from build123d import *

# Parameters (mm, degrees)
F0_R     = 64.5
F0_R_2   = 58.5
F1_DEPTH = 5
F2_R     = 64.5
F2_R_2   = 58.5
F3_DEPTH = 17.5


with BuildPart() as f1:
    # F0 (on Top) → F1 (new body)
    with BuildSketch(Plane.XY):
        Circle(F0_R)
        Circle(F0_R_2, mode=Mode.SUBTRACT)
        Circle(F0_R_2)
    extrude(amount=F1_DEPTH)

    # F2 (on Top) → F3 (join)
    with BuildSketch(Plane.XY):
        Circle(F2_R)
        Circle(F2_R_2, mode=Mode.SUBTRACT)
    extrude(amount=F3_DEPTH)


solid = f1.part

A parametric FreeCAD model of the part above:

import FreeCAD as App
import Part
import Sketcher
Q = App.Units.Quantity

doc = App.newDocument("Part")
body = doc.addObject("PartDesign::Body", "Body")

sketch1 = body.newObject("Sketcher::SketchObject", "Sketch")
sketch1.AttachmentSupport = (doc.getObject("XY_Plane"), [""])
sketch1.MapMode = "FlatFace"
sketch1.addGeometry(Part.Circle(App.Vector(0, 0, 0), App.Vector(0, 0, 1), 64), False)
sketch1.addConstraint([
    Sketcher.Constraint("Coincident", 0, 3, -1, 1),
    Sketcher.Constraint("Diameter", 0, Q("129 mm")),
])
pad1 = body.newObject("PartDesign::Pad", "Pad")
pad1.Profile = sketch1
pad1.Length = 5

sketch2 = body.newObject("Sketcher::SketchObject", "Sketch001")
sketch2.AttachmentSupport = (doc.getObject("XY_Plane"), [""])
sketch2.MapMode = "FlatFace"
sketch2.addGeometry([
    Part.Circle(App.Vector(0, 0, 0), App.Vector(0, 0, 1), 64),
    Part.Circle(App.Vector(0, 0, 0), App.Vector(0, 0, 1), 58),
], False)
sketch2.addConstraint([
    Sketcher.Constraint("Coincident", 0, 3, -1, 1),
    Sketcher.Constraint("Coincident", 1, 3, -1, 1),
    Sketcher.Constraint("Diameter", 0, Q("129 mm")),
    Sketcher.Constraint("Diameter", 1, Q("117 mm")),
])
pad2 = body.newObject("PartDesign::Pad", "Pad001")
pad2.Profile = sketch2
pad2.Length = 17.5

doc.recompute()
